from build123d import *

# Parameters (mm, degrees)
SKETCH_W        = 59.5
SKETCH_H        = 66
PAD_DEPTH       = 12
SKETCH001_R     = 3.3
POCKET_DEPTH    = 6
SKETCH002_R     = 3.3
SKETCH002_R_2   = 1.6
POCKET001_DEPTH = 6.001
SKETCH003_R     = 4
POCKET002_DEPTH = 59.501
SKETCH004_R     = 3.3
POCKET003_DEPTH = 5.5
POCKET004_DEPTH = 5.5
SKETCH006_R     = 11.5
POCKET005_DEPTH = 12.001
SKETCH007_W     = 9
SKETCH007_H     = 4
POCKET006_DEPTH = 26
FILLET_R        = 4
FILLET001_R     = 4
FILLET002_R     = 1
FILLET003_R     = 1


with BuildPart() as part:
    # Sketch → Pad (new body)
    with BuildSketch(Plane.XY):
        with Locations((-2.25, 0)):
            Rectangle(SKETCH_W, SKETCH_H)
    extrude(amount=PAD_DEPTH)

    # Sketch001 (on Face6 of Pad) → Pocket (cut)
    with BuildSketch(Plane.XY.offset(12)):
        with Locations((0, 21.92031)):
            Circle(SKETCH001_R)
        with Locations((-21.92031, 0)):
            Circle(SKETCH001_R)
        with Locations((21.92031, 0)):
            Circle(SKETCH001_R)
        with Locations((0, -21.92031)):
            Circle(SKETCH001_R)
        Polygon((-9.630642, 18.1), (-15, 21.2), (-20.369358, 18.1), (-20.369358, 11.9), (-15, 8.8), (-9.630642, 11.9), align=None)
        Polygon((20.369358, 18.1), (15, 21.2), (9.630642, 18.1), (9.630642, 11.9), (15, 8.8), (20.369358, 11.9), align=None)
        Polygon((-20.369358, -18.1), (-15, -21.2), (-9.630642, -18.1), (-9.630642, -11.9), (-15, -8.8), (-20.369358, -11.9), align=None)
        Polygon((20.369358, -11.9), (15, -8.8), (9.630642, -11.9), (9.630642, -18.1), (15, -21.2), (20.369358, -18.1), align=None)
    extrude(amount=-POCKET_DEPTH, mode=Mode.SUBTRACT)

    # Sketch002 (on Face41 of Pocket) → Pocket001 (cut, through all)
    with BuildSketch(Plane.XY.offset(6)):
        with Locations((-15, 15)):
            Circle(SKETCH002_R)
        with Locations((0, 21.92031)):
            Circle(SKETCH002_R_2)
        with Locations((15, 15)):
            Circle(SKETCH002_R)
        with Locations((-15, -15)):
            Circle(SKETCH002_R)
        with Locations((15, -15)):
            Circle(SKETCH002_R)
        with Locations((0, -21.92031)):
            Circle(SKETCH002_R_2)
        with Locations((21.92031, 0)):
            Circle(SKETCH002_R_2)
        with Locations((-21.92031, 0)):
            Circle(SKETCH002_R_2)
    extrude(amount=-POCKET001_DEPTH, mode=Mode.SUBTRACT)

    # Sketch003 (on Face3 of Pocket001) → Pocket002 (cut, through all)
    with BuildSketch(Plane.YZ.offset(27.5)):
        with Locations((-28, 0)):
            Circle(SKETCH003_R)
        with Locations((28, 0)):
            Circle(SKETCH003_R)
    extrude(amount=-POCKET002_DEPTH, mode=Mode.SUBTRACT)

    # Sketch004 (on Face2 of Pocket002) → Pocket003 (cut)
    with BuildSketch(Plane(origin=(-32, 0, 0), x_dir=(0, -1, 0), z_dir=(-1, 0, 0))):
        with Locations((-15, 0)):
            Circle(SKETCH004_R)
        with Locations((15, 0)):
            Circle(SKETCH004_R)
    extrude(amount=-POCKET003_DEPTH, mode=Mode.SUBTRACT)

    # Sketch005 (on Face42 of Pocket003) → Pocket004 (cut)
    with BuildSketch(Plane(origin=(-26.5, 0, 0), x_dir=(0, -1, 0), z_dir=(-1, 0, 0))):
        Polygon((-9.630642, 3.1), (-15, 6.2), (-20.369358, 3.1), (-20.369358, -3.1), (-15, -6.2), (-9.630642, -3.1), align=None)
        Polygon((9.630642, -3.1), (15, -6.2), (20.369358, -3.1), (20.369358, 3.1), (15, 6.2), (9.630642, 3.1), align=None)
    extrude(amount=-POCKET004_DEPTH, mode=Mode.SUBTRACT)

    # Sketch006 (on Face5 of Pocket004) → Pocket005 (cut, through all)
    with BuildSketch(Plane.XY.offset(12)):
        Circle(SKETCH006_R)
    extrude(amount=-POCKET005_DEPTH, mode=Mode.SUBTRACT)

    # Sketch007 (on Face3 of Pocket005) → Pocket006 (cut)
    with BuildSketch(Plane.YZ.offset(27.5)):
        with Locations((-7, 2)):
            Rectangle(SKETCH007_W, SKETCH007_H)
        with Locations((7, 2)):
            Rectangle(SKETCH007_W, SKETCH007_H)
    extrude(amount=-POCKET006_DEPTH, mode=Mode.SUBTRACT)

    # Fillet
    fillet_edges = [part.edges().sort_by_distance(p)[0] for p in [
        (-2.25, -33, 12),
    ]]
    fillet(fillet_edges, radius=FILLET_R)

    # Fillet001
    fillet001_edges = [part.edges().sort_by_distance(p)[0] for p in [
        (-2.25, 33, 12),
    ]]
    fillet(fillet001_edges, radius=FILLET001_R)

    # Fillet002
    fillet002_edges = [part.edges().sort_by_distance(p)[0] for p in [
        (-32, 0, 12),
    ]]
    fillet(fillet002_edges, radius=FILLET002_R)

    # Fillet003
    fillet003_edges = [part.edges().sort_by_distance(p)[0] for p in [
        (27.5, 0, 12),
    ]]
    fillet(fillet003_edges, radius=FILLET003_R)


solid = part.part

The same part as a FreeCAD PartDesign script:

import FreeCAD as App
import Part
import Sketcher
from FreeCAD import Vector
Q = App.Units.Quantity


def edges_at(feature, points):
    """Names of the edges that pass closest to the given points."""
    edges = feature.Shape.Edges
    near = lambda p: min(range(len(edges)), key=lambda i: edges[i].distToShape(Part.Vertex(*p))[0])
    return sorted({f"Edge{near(p) + 1}" for p in points})


def add_polygon(sketch, points):
    """Adds a closed chain of lines whose ends are joined by coincident constraints."""
    first, n = sketch.GeometryCount, len(points)
    for a, b in zip(points, points[1:] + points[:1]):
        sketch.addGeometry(Part.LineSegment(App.Vector(*a, 0), App.Vector(*b, 0)), False)
    for i in range(n):
        sketch.addConstraint(Sketcher.Constraint("Coincident", first + i, 2, first + (i + 1) % n, 1))

doc = App.newDocument("Part")
body = doc.addObject("PartDesign::Body", "Body")

# Sketch on XY plane
sketch1 = body.newObject("Sketcher::SketchObject", "Sketch")
sketch1.AttachmentSupport = (doc.getObject("XY_Plane"), [""])
sketch1.MapMode = "FlatFace"
add_polygon(sketch1, [(-32, 33), (-32, -33), (28, -33), (28, 33)])  # lines 0-3
sketch1.addConstraint(Sketcher.Constraint("Vertical", 0))
sketch1.addConstraint(Sketcher.Constraint("Horizontal", 1))
sketch1.addConstraint(Sketcher.Constraint("Vertical", 2))
sketch1.addConstraint(Sketcher.Constraint("Horizontal", 3))
sketch1.addConstraint(Sketcher.Constraint("DistanceY", 0, 2, 0, 1, Q("66 mm")))
sketch1.addConstraint(Sketcher.Constraint("DistanceX", 1, 1, 1, 2, Q("59.5 mm")))
sketch1.addConstraint(Sketcher.Constraint("DistanceX", 0, 2, -1, 1, Q("32 mm")))
sketch1.addConstraint(Sketcher.Constraint("DistanceY", 0, 2, -1, 1, Q("33 mm")))
pad1 = body.newObject("PartDesign::Pad", "Pad")
pad1.Profile = sketch1
pad1.Length = 12

# Sketch on XY plane
sketch2 = body.newObject("Sketcher::SketchObject", "Sketch001")
sketch2.AttachmentSupport = (doc.getObject("XY_Plane"), [""])
sketch2.MapMode = "FlatFace"
sketch2.AttachmentOffset = App.Placement(Vector(0, 0, 12), App.Rotation())
sketch2.addGeometry(Part.Circle(Vector(0, 21.9, 0), Vector(0, 0, 1), 3.3), False)  # 0
sketch2.addGeometry(Part.Circle(Vector(-21.9, 0, 0), Vector(0, 0, 1), 3.3), False)  # 1
sketch2.addGeometry(Part.Circle(Vector(21.9, 0, 0), Vector(0, 0, 1), 3.3), False)  # 2
sketch2.addGeometry(Part.Circle(Vector(0, -21.9, 0), Vector(0, 0, 1), 3.3), False)  # 3
add_polygon(sketch2, [(-9.6, 18.1), (-15, 21.2), (-20.4, 18.1), (-20.4, 11.9), (-15, 8.8), (-9.6, 11.9)])  # lines 4-9
add_polygon(sketch2, [(20.4, 18.1), (15, 21.2), (9.6, 18.1), (9.6, 11.9), (15, 8.8), (20.4, 11.9)])  # lines 10-15
add_polygon(sketch2, [(-20.4, -18.1), (-15, -21.2), (-9.6, -18.1), (-9.6, -11.9), (-15, -8.8), (-20.4, -11.9)])  # lines 16-21
add_polygon(sketch2, [(20.4, -11.9), (15, -8.8), (9.6, -11.9), (9.6, -18.1), (15, -21.2), (20.4, -18.1)])  # lines 22-27
sketch2.addConstraint(Sketcher.Constraint("Vertical", 6))
sketch2.addConstraint(Sketcher.Constraint("Vertical", 9))
sketch2.addConstraint(Sketcher.Constraint("Vertical", 12))
sketch2.addConstraint(Sketcher.Constraint("Vertical", 15))
sketch2.addConstraint(Sketcher.Constraint("Vertical", 18))
sketch2.addConstraint(Sketcher.Constraint("Vertical", 21))
sketch2.addConstraint(Sketcher.Constraint("Vertical", 24))
sketch2.addConstraint(Sketcher.Constraint("Vertical", 27))
sketch2.addConstraint(Sketcher.Constraint("Equal", 0, 1))
sketch2.addConstraint(Sketcher.Constraint("Equal", 1, 2))
sketch2.addConstraint(Sketcher.Constraint("Equal", 2, 3))
sketch2.addConstraint(Sketcher.Constraint("Symmetric", 1, 3, 2, 3, -1, 1))
sketch2.addConstraint(Sketcher.Constraint("Symmetric", 0, 3, 3, 3, -1, 1))
sketch2.addConstraint(Sketcher.Constraint("Symmetric", 10, 2, 16, 2, -1, 1))
sketch2.addConstraint(Sketcher.Constraint("Symmetric", 11, 2, 17, 2, -1, 1))
sketch2.addConstraint(Sketcher.Constraint("Symmetric", 13, 2, 19, 2, -1, 1))
sketch2.addConstraint(Sketcher.Constraint("Symmetric", 14, 2, 20, 2, -1, 1))
sketch2.addConstraint(Sketcher.Constraint("Symmetric", 7, 2, 22, 2, -1, 1))
sketch2.addConstraint(Sketcher.Constraint("Symmetric", 8, 2, 23, 2, -1, 1))
sketch2.addConstraint(Sketcher.Constraint("Symmetric", 4, 2, 25, 2, -1, 1))
sketch2.addConstraint(Sketcher.Constraint("Symmetric", 5, 2, 26, 2, -1, 1))
sketch2.addConstraint(Sketcher.Constraint("Symmetric", 4, 2, 10, 2, -2))
sketch2.addConstraint(Sketcher.Constraint("Symmetric", 9, 2, 11, 2, -2))
sketch2.addConstraint(Sketcher.Constraint("Symmetric", 7, 2, 13, 2, -2))
sketch2.addConstraint(Sketcher.Constraint("Symmetric", 6, 2, 14, 2, -2))
sketch2.addConstraint(Sketcher.Constraint("PointOnObject", 0, 3, -2))
sketch2.addConstraint(Sketcher.Constraint("PointOnObject", 1, 3, -1))
sketch2.addConstraint(Sketcher.Constraint("Parallel", 4, 7))
sketch2.addConstraint(Sketcher.Constraint("Parallel", 5, 8))
sketch2.addConstraint(Sketcher.Constraint("Parallel", 7, 10))
sketch2.addConstraint(Sketcher.Constraint("Parallel", 8, 11))
sketch2.addConstraint(Sketcher.Constraint("Parallel", 10, 13))
sketch2.addConstraint(Sketcher.Constraint("Parallel", 13, 16))
sketch2.addConstraint(Sketcher.Constraint("Parallel", 16, 19))
sketch2.addConstraint(Sketcher.Constraint("Parallel", 19, 22))
sketch2.addConstraint(Sketcher.Constraint("Parallel", 22, 25))
sketch2.addConstraint(Sketcher.Constraint("Horizontal", 6, 2, 8, 2))
sketch2.addConstraint(Sketcher.Constraint("Horizontal", 5, 2, 9, 2))
sketch2.addConstraint(Sketcher.Constraint("Diameter", 0, Q("6.6 mm")))
sketch2.addConstraint(Sketcher.Constraint("Angle", 4, Q("150.000002 deg")))
sketch2.addConstraint(Sketcher.Constraint("DistanceY", 6, 2, 6, 1, Q("6.2 mm")))
sketch2.addConstraint(Sketcher.Constraint("DistanceX", 4, 2, -1, 1, Q("15 mm")))
sketch2.addConstraint(Sketcher.Constraint("DistanceY", 16, 2, 7, 2, Q("30 mm")))
sketch2.addConstraint(Sketcher.Constraint("Distance", 4, Q("6.2 mm")))
sketch2.addConstraint(Sketcher.Constraint("DistanceY", -1, 1, 0, 3, Q("21.92031 mm")))
sketch2.addConstraint(Sketcher.Constraint("DistanceX", 1, 3, -1, 1, Q("21.92031 mm")))
pocket1 = body.newObject("PartDesign::Pocket", "Pocket")
pocket1.Profile = sketch2
pocket1.Length = 6

# Sketch on XY plane
sketch3 = body.newObject("Sketcher::SketchObject", "Sketch002")
sketch3.AttachmentSupport = (doc.getObject("XY_Plane"), [""])
sketch3.MapMode = "FlatFace"
sketch3.AttachmentOffset = App.Placement(Vector(0, 0, 6), App.Rotation())
sketch3.addGeometry(Part.Circle(Vector(-15, 15, 0), Vector(0, 0, 1), 3.3), False)
sketch3.addGeometry(Part.Circle(Vector(0, 21.9, 0), Vector(0, 0, 1), 1.6), False)
sketch3.addGeometry(Part.Circle(Vector(15, 15, 0), Vector(0, 0, 1), 3.3), False)
sketch3.addGeometry(Part.Circle(Vector(-15, -15, 0), Vector(0, 0, 1), 3.3), False)
sketch3.addGeometry(Part.Circle(Vector(15, -15, 0), Vector(0, 0, 1), 3.3), False)
sketch3.addGeometry(Part.Circle(Vector(0, -21.9, 0), Vector(0, 0, 1), 1.6), False)
sketch3.addGeometry(Part.Circle(Vector(21.9, 0, 0), Vector(0, 0, 1), 1.6), False)
sketch3.addGeometry(Part.Circle(Vector(-21.9, 0, 0), Vector(0, 0, 1), 1.6), False)
sketch3.addConstraint(Sketcher.Constraint("Equal", 0, 2))
sketch3.addConstraint(Sketcher.Constraint("Equal", 2, 3))
sketch3.addConstraint(Sketcher.Constraint("Equal", 3, 4))
sketch3.addConstraint(Sketcher.Constraint("Equal", 1, 5))
sketch3.addConstraint(Sketcher.Constraint("Equal", 5, 6))
sketch3.addConstraint(Sketcher.Constraint("Equal", 6, 7))
sketch3.addConstraint(Sketcher.Constraint("Symmetric", 2, 3, 3, 3, -1, 1))
sketch3.addConstraint(Sketcher.Constraint("Symmetric", 0, 3, 4, 3, -1, 1))
sketch3.addConstraint(Sketcher.Constraint("Symmetric", 1, 3, 5, 3, -1, 1))
sketch3.addConstraint(Sketcher.Constraint("Symmetric", 6, 3, 7, 3, -1, 1))
sketch3.addConstraint(Sketcher.Constraint("Symmetric", 0, 3, 2, 3, -2))
sketch3.addConstraint(Sketcher.Constraint("PointOnObject", 1, 3, -2))
sketch3.addConstraint(Sketcher.Constraint("PointOnObject", 6, 3, -1))
sketch3.addConstraint(Sketcher.Constraint("Diameter", 0, Q("6.6 mm")))
sketch3.addConstraint(Sketcher.Constraint("Diameter", 1, Q("3.2 mm")))
sketch3.addConstraint(Sketcher.Constraint("DistanceX", 0, 3, -1, 1, Q("15 mm")))
sketch3.addConstraint(Sketcher.Constraint("DistanceY", -1, 1, 0, 3, Q("15 mm")))
sketch3.addConstraint(Sketcher.Constraint("DistanceY", -1, 1, 1, 3, Q("21.92031 mm")))
sketch3.addConstraint(Sketcher.Constraint("DistanceX", -1, 1, 6, 3, Q("21.92031 mm")))
pocket2 = body.newObject("PartDesign::Pocket", "Pocket001")
pocket2.Profile = sketch3
pocket2.Type = "ThroughAll"

# Sketch on YZ plane
sketch4 = body.newObject("Sketcher::SketchObject", "Sketch003")
sketch4.AttachmentSupport = (doc.getObject("YZ_Plane"), [""])
sketch4.MapMode = "FlatFace"
sketch4.AttachmentOffset = App.Placement(Vector(0, 0, 27.5), App.Rotation())
sketch4.addGeometry(Part.Circle(Vector(-28, 0, 0), Vector(0, 0, 1), 4), False)
sketch4.addGeometry(Part.Circle(Vector(28, 0, 0), Vector(0, 0, 1), 4), False)
sketch4.addConstraint(Sketcher.Constraint("Equal", 0, 1))
sketch4.addConstraint(Sketcher.Constraint("Symmetric", 0, 3, 1, 3, -1, 1))
sketch4.addConstraint(Sketcher.Constraint("PointOnObject", 0, 3, -1))
sketch4.addConstraint(Sketcher.Constraint("Diameter", 0, Q("8 mm")))
sketch4.addConstraint(Sketcher.Constraint("DistanceX", 0, 3, -1, 1, Q("28 mm")))
pocket3 = body.newObject("PartDesign::Pocket", "Pocket002")
pocket3.Profile = sketch4
pocket3.Type = "ThroughAll"

# Sketch on YZ plane
sketch5 = body.newObject("Sketcher::SketchObject", "Sketch004")
sketch5.AttachmentSupport = (doc.getObject("YZ_Plane"), [""])
sketch5.MapMode = "FlatFace"
sketch5.AttachmentOffset = App.Placement(Vector(0, 0, -32), App.Rotation())
sketch5.addGeometry(Part.Circle(Vector(15, 0, 0), Vector(0, 0, 1), 3.3), False)
sketch5.addGeometry(Part.Circle(Vector(-15, 0, 0), Vector(0, 0, 1), 3.3), False)
sketch5.addConstraint(Sketcher.Constraint("Equal", 0, 1))
sketch5.addConstraint(Sketcher.Constraint("Symmetric", 0, 3, 1, 3, -1, 1))
sketch5.addConstraint(Sketcher.Constraint("PointOnObject", 0, 3, -1))
sketch5.addConstraint(Sketcher.Constraint("Diameter", 0, Q("6.6 mm")))
sketch5.addConstraint(Sketcher.Constraint("DistanceX", -1, 1, 0, 3, Q("15 mm")))
pocket4 = body.newObject("PartDesign::Pocket", "Pocket003")
pocket4.Profile = sketch5
pocket4.Length = 5.5
pocket4.Reversed = True

# Sketch on YZ plane
sketch6 = body.newObject("Sketcher::SketchObject", "Sketch005")
sketch6.AttachmentSupport = (doc.getObject("YZ_Plane"), [""])
sketch6.MapMode = "FlatFace"
sketch6.AttachmentOffset = App.Placement(Vector(0, 0, -26.5), App.Rotation())
add_polygon(sketch6, [(10, 3), (15, 6), (20, 3), (20, -3), (15, -6), (10, -3)])  # lines 0-5
add_polygon(sketch6, [(-10, -3), (-15, -6), (-20, -3), (-20, 3), (-15, 6), (-10, 3)])  # lines 6-11
sketch6.addConstraint(Sketcher.Constraint("Vertical", 2))
sketch6.addConstraint(Sketcher.Constraint("Vertical", 5))
sketch6.addConstraint(Sketcher.Constraint("Vertical", 8))
sketch6.addConstraint(Sketcher.Constraint("Vertical", 11))
sketch6.addConstraint(Sketcher.Constraint("Symmetric", 0, 2, 6, 2, -1, 1))
sketch6.addConstraint(Sketcher.Constraint("Symmetric", 1, 2, 7, 2, -1, 1))
sketch6.addConstraint(Sketcher.Constraint("Symmetric", 3, 2, 9, 2, -1, 1))
sketch6.addConstraint(Sketcher.Constraint("Symmetric", 4, 2, 10, 2, -1, 1))
sketch6.addConstraint(Sketcher.Constraint("Symmetric", 3, 2, 6, 2, -2))
sketch6.addConstraint(Sketcher.Constraint("Parallel", 0, 3))
sketch6.addConstraint(Sketcher.Constraint("Parallel", 1, 4))
sketch6.addConstraint(Sketcher.Constraint("Parallel", 3, 6))
sketch6.addConstraint(Sketcher.Constraint("Parallel", 6, 9))
sketch6.addConstraint(Sketcher.Constraint("Horizontal", 2, 2, 4, 2))
sketch6.addConstraint(Sketcher.Constraint("Horizontal", 1, 2, 5, 2))
sketch6.addConstraint(Sketcher.Constraint("Angle", 0, Q("29.999998 deg")))
sketch6.addConstraint(Sketcher.Constraint("DistanceY", 2, 2, 2, 1, Q("6.2 mm")))
sketch6.addConstraint(Sketcher.Constraint("DistanceX", -1, 1, 0, 2, Q("15 mm")))
sketch6.addConstraint(Sketcher.Constraint("Distance", 0, Q("6.2 mm")))
pocket5 = body.newObject("PartDesign::Pocket", "Pocket004")
pocket5.Profile = sketch6
pocket5.Length = 5.5
pocket5.Reversed = True

# Sketch on XY plane
sketch7 = body.newObject("Sketcher::SketchObject", "Sketch006")
sketch7.AttachmentSupport = (doc.getObject("XY_Plane"), [""])
sketch7.MapMode = "FlatFace"
sketch7.AttachmentOffset = App.Placement(Vector(0, 0, 12), App.Rotation())
sketch7.addGeometry(Part.Circle(Vector(0, 0, 0), Vector(0, 0, 1), 12), False)
sketch7.addConstraint(Sketcher.Constraint("Coincident", 0, 3, -1, 1))
sketch7.addConstraint(Sketcher.Constraint("Diameter", 0, Q("23 mm")))
pocket6 = body.newObject("PartDesign::Pocket", "Pocket005")
pocket6.Profile = sketch7
pocket6.Type = "ThroughAll"

# Sketch on YZ plane
sketch8 = body.newObject("Sketcher::SketchObject", "Sketch007")
sketch8.AttachmentSupport = (doc.getObject("YZ_Plane"), [""])
sketch8.MapMode = "FlatFace"
sketch8.AttachmentOffset = App.Placement(Vector(0, 0, 27.5), App.Rotation())
add_polygon(sketch8, [(-11.5, 4), (-11.5, 0), (-2.5, 0), (-2.5, 4)])  # lines 0-3
add_polygon(sketch8, [(2.5, 4), (2.5, 0), (11.5, 0), (11.5, 4)])  # lines 4-7
sketch8.addConstraint(Sketcher.Constraint("Vertical", 0))
sketch8.addConstraint(Sketcher.Constraint("Horizontal", 1))
sketch8.addConstraint(Sketcher.Constraint("Vertical", 2))
sketch8.addConstraint(Sketcher.Constraint("Horizontal", 3))
sketch8.addConstraint(Sketcher.Constraint("Vertical", 4))
sketch8.addConstraint(Sketcher.Constraint("Horizontal", 5))
sketch8.addConstraint(Sketcher.Constraint("Vertical", 6))
sketch8.addConstraint(Sketcher.Constraint("Horizontal", 7))
sketch8.addConstraint(Sketcher.Constraint("Symmetric", 1, 2, 4, 2, -1, 1))
sketch8.addConstraint(Sketcher.Constraint("Symmetric", 0, 2, 5, 2, -2))
sketch8.addConstraint(Sketcher.Constraint("Horizontal", 3, 2, 6, 2))
sketch8.addConstraint(Sketcher.Constraint("DistanceX", 1, 1, 1, 2, Q("9 mm")))
sketch8.addConstraint(Sketcher.Constraint("DistanceY", 0, 2, 0, 1, Q("4 mm")))
sketch8.addConstraint(Sketcher.Constraint("DistanceX", 1, 2, 4, 2, Q("5 mm")))
pocket7 = body.newObject("PartDesign::Pocket", "Pocket006")
pocket7.Profile = sketch8
pocket7.Length = 26
doc.recompute()

fillet = body.newObject("PartDesign::Fillet", "Fillet")
fillet.Base = (pocket7, edges_at(pocket7, [(-2.25, -33, 12)]))
fillet.Radius = 4
doc.recompute()

fillet2 = body.newObject("PartDesign::Fillet", "Fillet001")
fillet2.Base = (fillet, edges_at(fillet, [(-2.25, 33, 12)]))
fillet2.Radius = 4
doc.recompute()

fillet3 = body.newObject("PartDesign::Fillet", "Fillet002")
fillet3.Base = (fillet2, edges_at(fillet2, [(-32, 0, 12)]))
fillet3.Radius = 1
doc.recompute()

fillet4 = body.newObject("PartDesign::Fillet", "Fillet003")
fillet4.Base = (fillet3, edges_at(fillet3, [(27.5, 0, 12)]))
fillet4.Radius = 1

doc.recompute()
